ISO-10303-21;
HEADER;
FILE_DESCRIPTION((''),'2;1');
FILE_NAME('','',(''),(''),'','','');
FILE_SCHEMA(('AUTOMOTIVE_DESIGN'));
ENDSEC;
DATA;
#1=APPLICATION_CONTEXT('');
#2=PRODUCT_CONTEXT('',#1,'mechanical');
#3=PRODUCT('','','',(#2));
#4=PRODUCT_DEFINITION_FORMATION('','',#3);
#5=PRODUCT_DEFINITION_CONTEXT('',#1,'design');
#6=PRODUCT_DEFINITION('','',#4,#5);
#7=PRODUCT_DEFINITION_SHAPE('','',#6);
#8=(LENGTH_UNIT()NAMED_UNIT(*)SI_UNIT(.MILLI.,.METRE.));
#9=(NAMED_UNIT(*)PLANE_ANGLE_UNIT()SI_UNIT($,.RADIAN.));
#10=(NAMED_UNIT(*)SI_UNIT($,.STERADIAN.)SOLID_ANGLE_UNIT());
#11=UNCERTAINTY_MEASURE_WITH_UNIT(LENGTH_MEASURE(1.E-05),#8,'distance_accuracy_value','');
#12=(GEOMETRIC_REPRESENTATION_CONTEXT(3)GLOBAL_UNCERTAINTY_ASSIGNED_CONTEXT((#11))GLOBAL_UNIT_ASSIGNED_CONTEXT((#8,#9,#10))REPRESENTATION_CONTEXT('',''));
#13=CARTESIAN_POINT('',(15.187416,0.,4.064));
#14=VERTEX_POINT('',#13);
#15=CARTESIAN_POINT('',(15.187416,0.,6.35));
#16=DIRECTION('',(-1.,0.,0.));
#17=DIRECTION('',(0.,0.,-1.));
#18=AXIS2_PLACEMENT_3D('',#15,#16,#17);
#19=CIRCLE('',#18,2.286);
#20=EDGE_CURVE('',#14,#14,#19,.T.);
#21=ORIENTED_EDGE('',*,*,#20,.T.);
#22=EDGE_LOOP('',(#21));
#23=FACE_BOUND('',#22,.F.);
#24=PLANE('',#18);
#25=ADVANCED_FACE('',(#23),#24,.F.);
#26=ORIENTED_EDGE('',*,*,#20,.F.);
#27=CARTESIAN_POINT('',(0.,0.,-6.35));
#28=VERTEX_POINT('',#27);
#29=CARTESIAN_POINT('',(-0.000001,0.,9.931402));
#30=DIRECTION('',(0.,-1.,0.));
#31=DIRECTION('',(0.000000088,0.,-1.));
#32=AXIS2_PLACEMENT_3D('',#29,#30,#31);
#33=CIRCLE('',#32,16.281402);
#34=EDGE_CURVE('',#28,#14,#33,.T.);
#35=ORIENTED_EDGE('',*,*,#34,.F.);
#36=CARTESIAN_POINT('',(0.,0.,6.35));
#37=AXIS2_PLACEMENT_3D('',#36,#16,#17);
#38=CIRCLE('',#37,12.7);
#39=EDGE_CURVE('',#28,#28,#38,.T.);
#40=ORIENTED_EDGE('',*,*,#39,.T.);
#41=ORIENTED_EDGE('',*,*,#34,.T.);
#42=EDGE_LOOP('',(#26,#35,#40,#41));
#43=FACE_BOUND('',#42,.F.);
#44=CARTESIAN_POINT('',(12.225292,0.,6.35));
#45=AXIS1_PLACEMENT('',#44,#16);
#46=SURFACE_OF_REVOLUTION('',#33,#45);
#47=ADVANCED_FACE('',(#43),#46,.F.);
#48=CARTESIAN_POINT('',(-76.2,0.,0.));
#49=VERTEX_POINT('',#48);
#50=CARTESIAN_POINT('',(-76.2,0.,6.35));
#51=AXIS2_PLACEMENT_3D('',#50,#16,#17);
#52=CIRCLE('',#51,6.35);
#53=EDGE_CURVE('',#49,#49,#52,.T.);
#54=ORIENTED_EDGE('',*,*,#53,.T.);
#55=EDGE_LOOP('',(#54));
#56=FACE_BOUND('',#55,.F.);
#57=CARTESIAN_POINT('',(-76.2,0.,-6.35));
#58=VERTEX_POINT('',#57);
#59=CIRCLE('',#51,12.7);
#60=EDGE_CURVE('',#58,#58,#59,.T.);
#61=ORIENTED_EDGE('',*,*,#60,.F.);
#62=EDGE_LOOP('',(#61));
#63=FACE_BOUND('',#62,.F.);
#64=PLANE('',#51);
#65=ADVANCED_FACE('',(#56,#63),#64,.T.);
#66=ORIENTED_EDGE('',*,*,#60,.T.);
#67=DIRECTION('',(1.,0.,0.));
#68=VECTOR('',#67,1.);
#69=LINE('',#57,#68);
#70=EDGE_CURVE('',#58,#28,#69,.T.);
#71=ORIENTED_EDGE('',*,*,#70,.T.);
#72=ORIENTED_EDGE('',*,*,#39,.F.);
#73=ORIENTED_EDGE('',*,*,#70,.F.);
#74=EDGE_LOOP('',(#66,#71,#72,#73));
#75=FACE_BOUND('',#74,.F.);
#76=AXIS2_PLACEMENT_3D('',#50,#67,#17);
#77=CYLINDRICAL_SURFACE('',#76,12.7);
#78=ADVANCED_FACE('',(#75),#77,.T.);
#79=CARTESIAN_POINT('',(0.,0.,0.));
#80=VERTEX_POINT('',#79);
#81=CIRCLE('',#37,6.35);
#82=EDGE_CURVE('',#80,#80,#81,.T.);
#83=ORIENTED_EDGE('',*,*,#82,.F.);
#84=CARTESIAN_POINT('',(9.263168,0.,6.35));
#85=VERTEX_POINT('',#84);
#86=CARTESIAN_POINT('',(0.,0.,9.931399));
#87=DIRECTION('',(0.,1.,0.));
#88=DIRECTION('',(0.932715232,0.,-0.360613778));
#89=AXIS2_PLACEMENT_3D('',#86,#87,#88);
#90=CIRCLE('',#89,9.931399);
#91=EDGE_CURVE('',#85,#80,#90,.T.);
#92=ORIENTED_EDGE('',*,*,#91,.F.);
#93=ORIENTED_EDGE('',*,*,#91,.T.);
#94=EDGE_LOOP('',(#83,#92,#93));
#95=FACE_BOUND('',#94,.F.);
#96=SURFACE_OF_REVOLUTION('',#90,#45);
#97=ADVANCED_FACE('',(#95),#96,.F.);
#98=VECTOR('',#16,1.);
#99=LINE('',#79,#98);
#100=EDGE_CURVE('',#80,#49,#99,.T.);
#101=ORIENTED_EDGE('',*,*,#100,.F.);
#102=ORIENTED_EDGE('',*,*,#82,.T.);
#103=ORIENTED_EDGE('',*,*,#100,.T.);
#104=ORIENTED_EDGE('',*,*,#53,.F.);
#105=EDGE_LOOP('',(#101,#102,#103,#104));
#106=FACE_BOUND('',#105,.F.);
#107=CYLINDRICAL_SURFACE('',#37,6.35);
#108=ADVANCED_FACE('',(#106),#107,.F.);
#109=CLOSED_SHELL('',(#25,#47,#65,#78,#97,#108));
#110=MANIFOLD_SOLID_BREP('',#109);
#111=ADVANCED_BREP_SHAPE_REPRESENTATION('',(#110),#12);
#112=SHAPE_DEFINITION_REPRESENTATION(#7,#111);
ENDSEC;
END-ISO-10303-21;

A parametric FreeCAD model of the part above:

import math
import FreeCAD as App
import Part
import Sketcher
Q = App.Units.Quantity

doc = App.newDocument("Part")
body = doc.addObject("PartDesign::Body", "Body")

# Sketch on XZ plane
sketch1 = body.newObject("Sketcher::SketchObject", "Sketch")
sketch1.AttachmentSupport = (doc.getObject("XZ_Plane"), [""])
sketch1.MapMode = "FlatFace"
sketch1.addGeometry(Part.ArcOfCircle(Part.Circle(App.Vector(0, 9.9, 0), App.Vector(0, 0, 1), 9.9), math.radians(-90), math.radians(-21)), False)
sketch1.addGeometry(Part.LineSegment(App.Vector(0, 0, 0), App.Vector(-76.2, 0, 0)), False)
sketch1.addGeometry(Part.LineSegment(App.Vector(-76.2, 0, 0), App.Vector(-76.2, -6.3, 0)), False)
sketch1.addGeometry(Part.LineSegment(App.Vector(-76.2, -6.3, 0), App.Vector(0, -6.3, 0)), False)
sketch1.addGeometry(Part.ArcOfCircle(Part.Circle(App.Vector(0, 9.9, 0), App.Vector(0, 0, 1), 16.3), math.radians(-90), math.radians(-21)), False)
sketch1.addGeometry(Part.LineSegment(App.Vector(15.2, 4.1, 0), App.Vector(15.2, 6.3, 0)), False)
sketch1.addGeometry(Part.LineSegment(App.Vector(15.2, 6.3, 0), App.Vector(9.3, 6.3, 0)), False)
sketch1.addGeometry(Part.LineSegment(App.Vector(15.2, 6.3, 0), App.Vector(-76.2, 6.3, 0)), True)  # axis
sketch1.addConstraint(Sketcher.Constraint("Tangent", 0, 1, 1, 1))
sketch1.addConstraint(Sketcher.Constraint("Coincident", 1, 2, 2, 1))
sketch1.addConstraint(Sketcher.Constraint("Coincident", 2, 2, 3, 1))
sketch1.addConstraint(Sketcher.Constraint("Tangent", 3, 2, 4, 1))
sketch1.addConstraint(Sketcher.Constraint("Coincident", 4, 2, 5, 1))
sketch1.addConstraint(Sketcher.Constraint("Coincident", 5, 2, 6, 1))
sketch1.addConstraint(Sketcher.Constraint("Coincident", 6, 2, 0, 2))
sketch1.addConstraint(Sketcher.Constraint("Horizontal", 1))
sketch1.addConstraint(Sketcher.Constraint("Vertical", 2))
sketch1.addConstraint(Sketcher.Constraint("Horizontal", 3))
sketch1.addConstraint(Sketcher.Constraint("Vertical", 5))
sketch1.addConstraint(Sketcher.Constraint("Horizontal", 6))
sketch1.addConstraint(Sketcher.Constraint("Horizontal", 7))
sketch1.addConstraint(Sketcher.Constraint("Coincident", 0, 1, -1, 1))
sketch1.addConstraint(Sketcher.Constraint("Coincident", 4, 3, 0, 3))
sketch1.addConstraint(Sketcher.Constraint("Coincident", 7, 1, 5, 2))
sketch1.addConstraint(Sketcher.Constraint("Symmetric", 2, 2, 7, 2, -1))
sketch1.addConstraint(Sketcher.Constraint("DistanceX", 1, 2, 1, 1, Q("3 in")))
sketch1.addConstraint(Sketcher.Constraint("Radius", 0, Q("0.391 in")))
sketch1.addConstraint(Sketcher.Constraint("Radius", 4, Q("0.6410001 in")))
sketch1.addConstraint(Sketcher.Constraint("DistanceY", 5, 1, 5, 2, Q("0.09 in")))
revolution = body.newObject("PartDesign::Revolution", "Revolution")
revolution.Profile = sketch1
revolution.ReferenceAxis = (sketch1, ["Axis0"])
revolution.Angle = 360

doc.recompute()
